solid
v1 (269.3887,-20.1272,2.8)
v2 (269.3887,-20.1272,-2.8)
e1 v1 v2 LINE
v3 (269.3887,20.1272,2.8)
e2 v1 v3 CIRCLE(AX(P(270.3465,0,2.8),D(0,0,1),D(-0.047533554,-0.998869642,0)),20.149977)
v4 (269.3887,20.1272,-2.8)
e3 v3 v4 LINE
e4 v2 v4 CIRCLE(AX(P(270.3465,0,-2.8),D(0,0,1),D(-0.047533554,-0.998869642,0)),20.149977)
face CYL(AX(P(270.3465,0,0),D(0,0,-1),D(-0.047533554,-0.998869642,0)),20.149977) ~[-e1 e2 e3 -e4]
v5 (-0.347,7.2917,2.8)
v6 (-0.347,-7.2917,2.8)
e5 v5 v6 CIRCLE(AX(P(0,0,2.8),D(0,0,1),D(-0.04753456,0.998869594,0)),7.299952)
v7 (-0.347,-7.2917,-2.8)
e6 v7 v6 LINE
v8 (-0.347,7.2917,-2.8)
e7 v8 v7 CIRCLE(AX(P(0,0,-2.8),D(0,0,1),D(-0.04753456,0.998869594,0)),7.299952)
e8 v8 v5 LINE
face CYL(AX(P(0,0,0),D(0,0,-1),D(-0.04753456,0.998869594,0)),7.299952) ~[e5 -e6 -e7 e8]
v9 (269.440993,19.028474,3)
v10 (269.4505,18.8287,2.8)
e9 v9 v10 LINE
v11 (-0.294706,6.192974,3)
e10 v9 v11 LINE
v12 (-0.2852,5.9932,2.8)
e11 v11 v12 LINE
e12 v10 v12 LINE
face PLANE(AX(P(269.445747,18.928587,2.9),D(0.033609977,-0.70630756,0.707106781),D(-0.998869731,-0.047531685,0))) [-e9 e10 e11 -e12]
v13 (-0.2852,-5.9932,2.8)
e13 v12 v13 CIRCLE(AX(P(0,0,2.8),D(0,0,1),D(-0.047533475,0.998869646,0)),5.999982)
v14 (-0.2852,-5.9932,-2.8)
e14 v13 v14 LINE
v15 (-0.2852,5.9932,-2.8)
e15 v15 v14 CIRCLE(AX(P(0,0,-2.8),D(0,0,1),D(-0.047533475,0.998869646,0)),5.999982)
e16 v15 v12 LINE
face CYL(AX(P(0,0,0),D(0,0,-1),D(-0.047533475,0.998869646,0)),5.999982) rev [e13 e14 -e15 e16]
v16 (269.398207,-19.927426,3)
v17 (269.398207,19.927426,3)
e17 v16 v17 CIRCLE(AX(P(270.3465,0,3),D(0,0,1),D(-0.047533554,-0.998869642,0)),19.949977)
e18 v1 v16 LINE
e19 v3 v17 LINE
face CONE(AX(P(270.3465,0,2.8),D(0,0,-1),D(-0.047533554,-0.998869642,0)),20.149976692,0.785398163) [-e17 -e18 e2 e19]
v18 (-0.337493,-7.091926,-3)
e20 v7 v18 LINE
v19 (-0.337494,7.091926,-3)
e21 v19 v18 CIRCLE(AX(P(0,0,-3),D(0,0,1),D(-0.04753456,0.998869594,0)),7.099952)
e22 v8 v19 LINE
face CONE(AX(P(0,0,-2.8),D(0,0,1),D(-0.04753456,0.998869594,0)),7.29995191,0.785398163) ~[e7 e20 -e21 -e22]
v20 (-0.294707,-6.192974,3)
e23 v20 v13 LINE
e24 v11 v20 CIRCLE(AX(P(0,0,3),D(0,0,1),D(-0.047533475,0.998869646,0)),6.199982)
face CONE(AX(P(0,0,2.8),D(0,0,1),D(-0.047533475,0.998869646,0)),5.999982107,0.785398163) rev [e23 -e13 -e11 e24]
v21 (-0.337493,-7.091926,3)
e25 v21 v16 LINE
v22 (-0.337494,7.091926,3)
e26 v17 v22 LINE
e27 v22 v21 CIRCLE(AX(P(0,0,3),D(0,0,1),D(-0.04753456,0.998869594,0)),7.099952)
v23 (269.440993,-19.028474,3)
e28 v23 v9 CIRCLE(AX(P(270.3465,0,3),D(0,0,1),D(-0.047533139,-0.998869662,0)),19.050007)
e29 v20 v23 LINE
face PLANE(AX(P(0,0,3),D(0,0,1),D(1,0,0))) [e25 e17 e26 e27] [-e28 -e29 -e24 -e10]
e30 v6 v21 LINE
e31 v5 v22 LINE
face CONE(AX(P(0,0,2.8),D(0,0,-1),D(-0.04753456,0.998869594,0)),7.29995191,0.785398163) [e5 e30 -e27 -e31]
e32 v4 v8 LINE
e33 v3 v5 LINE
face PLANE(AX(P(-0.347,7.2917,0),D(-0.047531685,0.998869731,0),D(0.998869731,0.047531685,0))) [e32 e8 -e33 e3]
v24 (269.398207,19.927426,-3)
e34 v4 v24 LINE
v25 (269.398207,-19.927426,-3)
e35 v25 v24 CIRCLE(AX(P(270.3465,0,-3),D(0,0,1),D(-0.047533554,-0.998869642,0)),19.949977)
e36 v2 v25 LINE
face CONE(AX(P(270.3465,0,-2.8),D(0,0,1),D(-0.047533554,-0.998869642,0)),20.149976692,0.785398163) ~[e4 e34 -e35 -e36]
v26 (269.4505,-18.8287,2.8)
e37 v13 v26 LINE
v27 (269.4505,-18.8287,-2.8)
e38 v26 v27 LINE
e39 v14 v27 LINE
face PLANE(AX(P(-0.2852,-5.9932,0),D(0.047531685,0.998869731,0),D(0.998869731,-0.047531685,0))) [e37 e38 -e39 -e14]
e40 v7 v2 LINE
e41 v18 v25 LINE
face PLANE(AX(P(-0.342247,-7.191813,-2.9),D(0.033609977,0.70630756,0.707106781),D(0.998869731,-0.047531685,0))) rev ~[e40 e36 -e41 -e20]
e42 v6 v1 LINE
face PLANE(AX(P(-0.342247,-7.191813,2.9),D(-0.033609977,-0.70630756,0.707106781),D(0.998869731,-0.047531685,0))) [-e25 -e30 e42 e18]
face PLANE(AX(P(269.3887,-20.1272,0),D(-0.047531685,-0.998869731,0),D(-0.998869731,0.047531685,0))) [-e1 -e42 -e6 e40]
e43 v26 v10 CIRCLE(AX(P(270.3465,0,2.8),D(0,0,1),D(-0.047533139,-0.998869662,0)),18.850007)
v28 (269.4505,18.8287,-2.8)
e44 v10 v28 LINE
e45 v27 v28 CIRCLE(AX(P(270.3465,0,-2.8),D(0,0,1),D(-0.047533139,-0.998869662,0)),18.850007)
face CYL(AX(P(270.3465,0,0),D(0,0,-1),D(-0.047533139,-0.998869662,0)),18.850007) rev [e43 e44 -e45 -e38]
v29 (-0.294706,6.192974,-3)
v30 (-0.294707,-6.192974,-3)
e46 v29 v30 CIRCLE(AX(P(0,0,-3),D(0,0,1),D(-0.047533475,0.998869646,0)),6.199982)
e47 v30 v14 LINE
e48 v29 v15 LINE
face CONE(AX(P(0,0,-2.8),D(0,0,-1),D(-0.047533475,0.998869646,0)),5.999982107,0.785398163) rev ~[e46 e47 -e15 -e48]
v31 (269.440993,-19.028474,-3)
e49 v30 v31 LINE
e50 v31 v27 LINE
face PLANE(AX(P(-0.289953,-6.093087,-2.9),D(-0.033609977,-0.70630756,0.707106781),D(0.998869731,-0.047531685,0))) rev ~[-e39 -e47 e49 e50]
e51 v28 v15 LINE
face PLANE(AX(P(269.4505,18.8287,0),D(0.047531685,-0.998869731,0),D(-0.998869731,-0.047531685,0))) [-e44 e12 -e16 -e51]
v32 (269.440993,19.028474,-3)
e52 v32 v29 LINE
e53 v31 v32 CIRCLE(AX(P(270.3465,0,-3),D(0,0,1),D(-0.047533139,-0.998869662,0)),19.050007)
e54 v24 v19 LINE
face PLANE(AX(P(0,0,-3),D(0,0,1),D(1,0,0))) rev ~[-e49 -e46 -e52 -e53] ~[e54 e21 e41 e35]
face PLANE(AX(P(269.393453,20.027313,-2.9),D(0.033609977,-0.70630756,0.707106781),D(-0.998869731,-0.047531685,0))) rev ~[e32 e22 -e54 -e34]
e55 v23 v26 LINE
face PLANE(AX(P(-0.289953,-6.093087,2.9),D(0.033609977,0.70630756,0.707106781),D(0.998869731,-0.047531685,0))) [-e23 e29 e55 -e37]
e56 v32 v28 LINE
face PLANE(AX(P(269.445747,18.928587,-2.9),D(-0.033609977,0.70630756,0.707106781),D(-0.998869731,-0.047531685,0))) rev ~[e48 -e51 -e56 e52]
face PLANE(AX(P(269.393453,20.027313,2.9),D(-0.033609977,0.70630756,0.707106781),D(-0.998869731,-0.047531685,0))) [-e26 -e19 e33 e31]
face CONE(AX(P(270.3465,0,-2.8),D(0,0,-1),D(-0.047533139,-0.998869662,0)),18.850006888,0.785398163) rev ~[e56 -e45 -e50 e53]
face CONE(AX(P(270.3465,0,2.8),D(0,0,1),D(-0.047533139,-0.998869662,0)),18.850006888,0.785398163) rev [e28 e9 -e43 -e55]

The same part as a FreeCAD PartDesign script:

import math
import FreeCAD as App
import Part
import Sketcher

V = App.Vector


def edges_at(feature, points):
    """Names of the edges that pass closest to the given points."""
    edges = feature.Shape.Edges
    near = lambda p: min(range(len(edges)), key=lambda i: edges[i].distToShape(Part.Vertex(*p))[0])
    return sorted({f"Edge{near(p) + 1}" for p in points})

doc = App.newDocument("Part")
body = doc.addObject("PartDesign::Body", "Body")

# Sketch on XY plane
sketch1 = body.newObject("Sketcher::SketchObject", "Sketch")
sketch1.AttachmentSupport = (doc.getObject("XY_Plane"), [""])
sketch1.MapMode = "FlatFace"
sketch1.addGeometry([
    Part.LineSegment(V(269, 20, 0), V(0, 7, 0)),  # 0
    Part.ArcOfCircle(Part.Circle(V(0, 0, 0), V(0, 0, 1), 7), math.radians(93), math.radians(267)),  # 1
    Part.LineSegment(V(0, -7, 0), V(269, -20, 0)),  # 2
    Part.ArcOfCircle(Part.Circle(V(270, 0, 0), V(0, 0, 1), 20), math.radians(-93), math.radians(93)),  # 3
    Part.ArcOfCircle(Part.Circle(V(0, 0, 0), V(0, 0, 1), 6), math.radians(93), math.radians(267)),  # 4
    Part.LineSegment(V(0, 6, 0), V(269, 19, 0)),  # 5
    Part.ArcOfCircle(Part.Circle(V(270, 0, 0), V(0, 0, 1), 19), math.radians(-93), math.radians(93)),  # 6
    Part.LineSegment(V(269, -19, 0), V(0, -6, 0)),  # 7
], False)
sketch1.addConstraint([
    Sketcher.Constraint("Tangent", 0, 2, 1, 1),
    Sketcher.Constraint("Tangent", 1, 2, 2, 1),
    Sketcher.Constraint("Tangent", 2, 2, 3, 1),
    Sketcher.Constraint("Tangent", 3, 2, 0, 1),
    Sketcher.Constraint("Tangent", 4, 1, 5, 1),
    Sketcher.Constraint("Tangent", 5, 2, 6, 2),
    Sketcher.Constraint("Tangent", 6, 1, 7, 1),
    Sketcher.Constraint("Tangent", 7, 2, 4, 2),
    Sketcher.Constraint("Coincident", 1, 3, -1, 1),
    Sketcher.Constraint("Coincident", 4, 3, -1, 1),
    Sketcher.Constraint("Coincident", 6, 3, 3, 3),
    Sketcher.Constraint("PointOnObject", 3, 3, -1),
    Sketcher.Constraint("Parallel", 0, 5),
    Sketcher.Constraint("Radius", 4, 6.0),
    Sketcher.Constraint("Radius", 6, 18.85),
    Sketcher.Constraint("Radius", 1, 7.3),
    Sketcher.Constraint("DistanceX", -1, 1, 3, 3, 270.3465),
])
pad1 = body.newObject("PartDesign::Pad", "Pad")
pad1.Profile = sketch1
pad1.Length = 6
pad1.Midplane = True
doc.recompute()

chamfer = body.newObject("PartDesign::Chamfer", "Chamfer")
chamfer.Base = (pad1, edges_at(pad1, [
    (289.197, 0, 3),
    (134.583, -12.411, 3),
    (-6, 0, 3),
    (134.583, 12.411, 3),
    (289.197, 0, -3),
    (134.583, 12.411, -3),
    (-6, 0, -3),
    (134.583, -12.411, -3),
    (290.497, 0, 3),
    (134.521, 13.71, 3),
    (-7.3, 0, 3),
    (134.521, -13.71, 3),
    (290.497, 0, -3),
    (134.521, -13.71, -3),
    (-7.3, 0, -3),
    (134.521, 13.71, -3),
]))
chamfer.Size = 0.2

doc.recompute()
